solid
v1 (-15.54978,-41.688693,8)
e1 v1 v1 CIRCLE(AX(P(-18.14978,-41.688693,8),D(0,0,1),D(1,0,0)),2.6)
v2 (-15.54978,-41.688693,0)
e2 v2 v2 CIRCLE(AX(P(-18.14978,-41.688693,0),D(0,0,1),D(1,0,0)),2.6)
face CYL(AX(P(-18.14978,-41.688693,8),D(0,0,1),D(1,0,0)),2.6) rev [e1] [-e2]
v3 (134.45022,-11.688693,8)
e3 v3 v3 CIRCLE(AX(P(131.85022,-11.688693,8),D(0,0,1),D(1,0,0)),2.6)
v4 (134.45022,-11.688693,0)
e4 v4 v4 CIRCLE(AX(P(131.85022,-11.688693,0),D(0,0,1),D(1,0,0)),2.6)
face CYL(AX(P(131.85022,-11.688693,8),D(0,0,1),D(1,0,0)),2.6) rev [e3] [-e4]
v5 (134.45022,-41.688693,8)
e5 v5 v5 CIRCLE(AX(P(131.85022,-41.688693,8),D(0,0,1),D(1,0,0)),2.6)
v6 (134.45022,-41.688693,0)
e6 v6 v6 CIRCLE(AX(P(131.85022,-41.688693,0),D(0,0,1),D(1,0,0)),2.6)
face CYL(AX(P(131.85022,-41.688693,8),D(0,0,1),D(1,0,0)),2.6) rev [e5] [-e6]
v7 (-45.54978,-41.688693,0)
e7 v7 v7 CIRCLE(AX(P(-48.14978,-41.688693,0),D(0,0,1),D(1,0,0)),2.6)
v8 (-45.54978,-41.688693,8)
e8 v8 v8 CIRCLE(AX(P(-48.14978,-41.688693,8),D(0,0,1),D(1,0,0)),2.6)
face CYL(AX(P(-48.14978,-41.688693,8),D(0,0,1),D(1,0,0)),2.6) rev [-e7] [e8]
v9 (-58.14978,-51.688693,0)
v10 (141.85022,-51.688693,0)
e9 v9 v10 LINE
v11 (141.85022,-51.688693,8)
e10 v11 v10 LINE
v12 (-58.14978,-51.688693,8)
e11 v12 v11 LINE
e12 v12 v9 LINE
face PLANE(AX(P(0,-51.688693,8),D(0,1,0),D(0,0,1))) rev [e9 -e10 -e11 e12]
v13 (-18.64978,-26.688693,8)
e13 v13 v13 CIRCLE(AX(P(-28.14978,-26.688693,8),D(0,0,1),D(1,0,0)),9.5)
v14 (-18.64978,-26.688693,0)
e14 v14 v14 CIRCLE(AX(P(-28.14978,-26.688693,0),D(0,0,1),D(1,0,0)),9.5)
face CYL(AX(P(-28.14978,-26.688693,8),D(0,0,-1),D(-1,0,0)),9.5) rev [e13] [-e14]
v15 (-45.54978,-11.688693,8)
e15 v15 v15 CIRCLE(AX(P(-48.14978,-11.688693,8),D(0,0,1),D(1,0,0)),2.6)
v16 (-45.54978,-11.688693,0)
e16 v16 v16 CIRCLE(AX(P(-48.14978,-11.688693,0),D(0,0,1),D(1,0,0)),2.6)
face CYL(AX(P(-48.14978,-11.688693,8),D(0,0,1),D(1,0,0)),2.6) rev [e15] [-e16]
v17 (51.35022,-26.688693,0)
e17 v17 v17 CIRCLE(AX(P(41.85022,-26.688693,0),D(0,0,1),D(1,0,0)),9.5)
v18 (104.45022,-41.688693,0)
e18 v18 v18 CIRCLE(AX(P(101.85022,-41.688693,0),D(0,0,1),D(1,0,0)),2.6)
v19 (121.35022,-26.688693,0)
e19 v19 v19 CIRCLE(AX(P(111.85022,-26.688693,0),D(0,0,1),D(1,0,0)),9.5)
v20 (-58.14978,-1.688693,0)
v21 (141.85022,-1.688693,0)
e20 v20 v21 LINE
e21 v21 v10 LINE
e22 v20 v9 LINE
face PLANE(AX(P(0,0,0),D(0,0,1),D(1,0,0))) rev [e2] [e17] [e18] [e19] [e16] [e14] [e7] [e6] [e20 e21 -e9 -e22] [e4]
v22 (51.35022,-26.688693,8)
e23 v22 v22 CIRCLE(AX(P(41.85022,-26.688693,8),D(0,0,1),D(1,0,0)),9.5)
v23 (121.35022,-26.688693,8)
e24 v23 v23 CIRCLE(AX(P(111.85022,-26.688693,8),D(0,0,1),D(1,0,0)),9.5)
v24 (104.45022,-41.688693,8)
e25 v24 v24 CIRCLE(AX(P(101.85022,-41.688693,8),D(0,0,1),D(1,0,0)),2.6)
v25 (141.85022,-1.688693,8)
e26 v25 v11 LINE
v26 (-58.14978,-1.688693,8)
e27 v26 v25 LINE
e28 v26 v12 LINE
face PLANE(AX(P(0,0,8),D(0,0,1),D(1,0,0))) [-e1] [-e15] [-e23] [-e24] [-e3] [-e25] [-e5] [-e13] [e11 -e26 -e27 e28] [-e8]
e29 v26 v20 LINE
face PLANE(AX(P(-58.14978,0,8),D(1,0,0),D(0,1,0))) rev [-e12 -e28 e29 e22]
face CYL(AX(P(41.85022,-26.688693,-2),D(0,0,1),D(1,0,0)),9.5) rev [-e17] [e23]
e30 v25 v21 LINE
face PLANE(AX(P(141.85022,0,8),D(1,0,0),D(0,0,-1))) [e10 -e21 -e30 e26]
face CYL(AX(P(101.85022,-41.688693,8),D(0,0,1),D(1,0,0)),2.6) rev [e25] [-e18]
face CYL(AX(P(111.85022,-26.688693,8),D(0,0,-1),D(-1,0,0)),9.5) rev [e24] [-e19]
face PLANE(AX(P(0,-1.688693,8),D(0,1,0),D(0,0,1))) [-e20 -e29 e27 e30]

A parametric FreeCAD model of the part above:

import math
import FreeCAD as App
import Part
import Sketcher
from FreeCAD import Vector


def add_polygon(sketch, points):
    """Adds a closed chain of lines whose ends are joined by coincident constraints."""
    first, n = sketch.GeometryCount, len(points)
    for a, b in zip(points, points[1:] + points[:1]):
        sketch.addGeometry(Part.LineSegment(App.Vector(*a, 0), App.Vector(*b, 0)), False)
    for i in range(n):
        sketch.addConstraint(Sketcher.Constraint("Coincident", first + i, 2, first + (i + 1) % n, 1))

doc = App.newDocument("Part")
body = doc.addObject("PartDesign::Body", "Body")

sketch1 = body.newObject("Sketcher::SketchObject", "Sketch")
sketch1.AttachmentSupport = (doc.getObject("XY_Plane"), [""])
sketch1.MapMode = "FlatFace"
add_polygon(sketch1, [(142, -52), (142, -2), (-58, -2), (-58, -52)])
sketch1.addGeometry(Part.Circle(Vector(112, -27, 0), Vector(0, 0, 1), 10), False)
sketch1.addGeometry(Part.Circle(Vector(-28, -27, 0), Vector(0, 0, 1), 10), False)
sketch1.addConstraint([
    Sketcher.Constraint("Vertical", 0),
    Sketcher.Constraint("Horizontal", 1),
    Sketcher.Constraint("Vertical", 2),
    Sketcher.Constraint("Horizontal", 3),
    Sketcher.Constraint("Equal", 4, 5),
    Sketcher.Constraint("Horizontal", 4, 3, 5, 3),
    Sketcher.Constraint("Diameter", 4, 19.0),
    Sketcher.Constraint("DistanceX", 1, 2, 1, 1, 200.0),
    Sketcher.Constraint("DistanceY", 0, 1, 0, 2, 50.0),
    Sketcher.Constraint("DistanceX", 5, 3, 4, 3, 140.0),
    Sketcher.Constraint("DistanceX", 4, 3, 0, 2, 30.0),
    Sketcher.Constraint("DistanceY", 4, 3, 0, 2, 25.0),
    Sketcher.Constraint("DistanceX", -1, 1, 4, 3, 111.85022),
    Sketcher.Constraint("DistanceY", 4, 3, -1, 1, 26.688693),
])
pad1 = body.newObject("PartDesign::Pad", "Pad")
pad1.Profile = sketch1
pad1.Length = 8

sketch2 = body.newObject("Sketcher::SketchObject", "Sketch001")
sketch2.AttachmentSupport = (doc.getObject("XY_Plane"), [""])
sketch2.MapMode = "FlatFace"
sketch2.AttachmentOffset = App.Placement(Vector(0, 0, 8), App.Rotation())
sketch2.addGeometry([
    Part.Circle(Vector(-48.1, -11.7, 0), Vector(0, 0, 1), 2.6),
    Part.Circle(Vector(-48.1, -41.7, 0), Vector(0, 0, 1), 2.6),
    Part.Circle(Vector(131.9, -41.7, 0), Vector(0, 0, 1), 2.6),
    Part.Circle(Vector(131.9, -11.7, 0), Vector(0, 0, 1), 2.6),
], False)
sketch2.addConstraint([
    Sketcher.Constraint("Equal", 0, 1),
    Sketcher.Constraint("Equal", 1, 2),
    Sketcher.Constraint("Equal", 2, 3),
    Sketcher.Constraint("Horizontal", 1, 3, 2, 3),
    Sketcher.Constraint("Horizontal", 0, 3, 3, 3),
    Sketcher.Constraint("Vertical", 0, 3, 1, 3),
    Sketcher.Constraint("Vertical", 2, 3, 3, 3),
    Sketcher.Constraint("Diameter", 0, 5.2),
    Sketcher.Constraint("DistanceY", 1, 3, 0, 3, 30.0),
    Sketcher.Constraint("DistanceX", 1, 3, 2, 3, 180.0),
    Sketcher.Constraint("DistanceX", 0, 3, -1, 1, 48.14978),
    Sketcher.Constraint("DistanceY", 0, 3, -1, 1, 11.688693),
])
doc.recompute()
hole = body.newObject("PartDesign::Hole", "Hole")
hole.Profile = sketch2
hole.ThreadType = "None"
hole.Diameter = 5.2
hole.DepthType = "ThroughAll"

sketch3 = body.newObject("Sketcher::SketchObject", "Sketch002")
sketch3.AttachmentSupport = (doc.getObject("XY_Plane"), [""])
sketch3.MapMode = "FlatFace"
sketch3.AttachmentOffset = App.Placement(Vector(0, 0, 8), App.Rotation())
sketch3.addGeometry([
    Part.Circle(Vector(-18.1, -41.7, 0), Vector(0, 0, 1), 2.6),
    Part.Circle(Vector(101.9, -41.7, 0), Vector(0, 0, 1), 2.6),
], False)
sketch3.addConstraint([
    Sketcher.Constraint("Equal", 0, 1),
    Sketcher.Constraint("Horizontal", 0, 3, 1, 3),
    Sketcher.Constraint("Diameter", 0, 5.2),
    Sketcher.Constraint("DistanceX", 0, 3, 1, 3, 120.0),
    Sketcher.Constraint("DistanceX", 0, 3, -1, 1, 18.14978),
    Sketcher.Constraint("DistanceY", 0, 3, -1, 1, 41.688693),
])
doc.recompute()
hole2 = body.newObject("PartDesign::Hole", "Hole001")
hole2.Profile = sketch3
hole2.ThreadType = "None"
hole2.Diameter = 5.2
hole2.DepthType = "ThroughAll"

sketch4 = body.newObject("Sketcher::SketchObject", "Sketch003")
sketch4.AttachmentSupport = (doc.getObject("XY_Plane"), [""])
sketch4.MapMode = "FlatFace"
sketch4.AttachmentOffset = App.Placement(Vector(0, 0, 8), App.Rotation())
sketch4.addGeometry([
    Part.ArcOfCircle(Part.Circle(Vector(42, -27, 0), Vector(0, 0, 1), 9), math.radians(0), math.radians(90)),
    Part.ArcOfCircle(Part.Circle(Vector(42, -27, 0), Vector(0, 0, 1), 10), math.radians(90), math.radians(270)),
    Part.ArcOfCircle(Part.Circle(Vector(42, -27, 0), Vector(0, 0, 1), 9), math.radians(-90), math.radians(0)),
], False)
sketch4.addConstraint([
    Sketcher.Constraint("Tangent", 0, 2, 1, 1),
    Sketcher.Constraint("Tangent", 1, 2, 2, 1),
    Sketcher.Constraint("Tangent", 2, 2, 0, 1),
    Sketcher.Constraint("Horizontal", 1, 3, 2, 2),
    Sketcher.Constraint("Vertical", 2, 3, 0, 2),
    Sketcher.Constraint("Vertical", 0, 2, 1, 2),
    Sketcher.Constraint("Radius", 0, 9.5),
    Sketcher.Constraint("DistanceX", -1, 1, 0, 3, 41.85022),
    Sketcher.Constraint("DistanceY", 0, 3, -1, 1, 26.688693),
])
pocket1 = body.newObject("PartDesign::Pocket", "Pocket")
pocket1.Profile = sketch4
pocket1.Length = 10

doc.recompute()
